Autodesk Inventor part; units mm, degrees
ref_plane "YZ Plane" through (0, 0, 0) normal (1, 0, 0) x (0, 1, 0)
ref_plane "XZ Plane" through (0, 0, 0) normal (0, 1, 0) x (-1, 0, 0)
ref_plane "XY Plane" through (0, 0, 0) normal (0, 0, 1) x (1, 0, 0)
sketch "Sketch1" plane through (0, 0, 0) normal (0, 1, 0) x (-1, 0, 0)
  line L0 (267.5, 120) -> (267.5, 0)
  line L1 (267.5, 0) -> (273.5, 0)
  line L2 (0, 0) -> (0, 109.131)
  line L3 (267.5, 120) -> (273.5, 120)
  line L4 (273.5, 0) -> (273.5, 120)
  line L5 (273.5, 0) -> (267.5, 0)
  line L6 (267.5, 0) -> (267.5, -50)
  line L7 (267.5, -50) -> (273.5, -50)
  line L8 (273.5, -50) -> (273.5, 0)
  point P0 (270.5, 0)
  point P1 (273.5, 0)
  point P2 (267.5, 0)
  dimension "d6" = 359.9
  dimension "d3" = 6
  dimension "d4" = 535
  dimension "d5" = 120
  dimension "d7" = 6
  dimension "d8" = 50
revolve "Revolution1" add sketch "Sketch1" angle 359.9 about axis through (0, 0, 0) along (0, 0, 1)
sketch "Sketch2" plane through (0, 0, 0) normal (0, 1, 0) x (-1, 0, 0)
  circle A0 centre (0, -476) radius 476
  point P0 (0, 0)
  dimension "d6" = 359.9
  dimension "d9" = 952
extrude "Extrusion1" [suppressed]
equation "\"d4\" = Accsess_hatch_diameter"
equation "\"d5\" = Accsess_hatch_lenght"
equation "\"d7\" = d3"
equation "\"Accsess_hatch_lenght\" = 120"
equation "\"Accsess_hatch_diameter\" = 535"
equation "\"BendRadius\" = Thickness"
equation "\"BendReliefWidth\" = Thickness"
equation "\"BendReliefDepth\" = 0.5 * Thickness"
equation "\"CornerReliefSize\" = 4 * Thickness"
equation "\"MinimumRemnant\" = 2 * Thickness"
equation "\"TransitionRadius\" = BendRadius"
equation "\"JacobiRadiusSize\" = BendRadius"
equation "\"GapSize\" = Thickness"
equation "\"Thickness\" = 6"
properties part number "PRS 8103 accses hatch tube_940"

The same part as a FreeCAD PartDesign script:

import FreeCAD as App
import Part
import Sketcher

V = App.Vector
Q = App.Units.Quantity


def add_polygon(sketch, points):
    """Adds a closed chain of lines whose ends are joined by coincident constraints."""
    first, n = sketch.GeometryCount, len(points)
    for a, b in zip(points, points[1:] + points[:1]):
        sketch.addGeometry(Part.LineSegment(App.Vector(*a, 0), App.Vector(*b, 0)), False)
    for i in range(n):
        sketch.addConstraint(Sketcher.Constraint("Coincident", first + i, 2, first + (i + 1) % n, 1))

doc = App.newDocument("Part")
body = doc.addObject("PartDesign::Body", "Body")

sketch1 = body.newObject("Sketcher::SketchObject", "Sketch")
sketch1.AttachmentSupport = (doc.getObject("XZ_Plane"), [""])
sketch1.MapMode = "FlatFace"
add_polygon(sketch1, [(-274, 120), (-268, 120), (-268, -50), (-274, -50)])
sketch1.addConstraint(Sketcher.Constraint("Horizontal", 0))
sketch1.addConstraint(Sketcher.Constraint("Vertical", 1))
sketch1.addConstraint(Sketcher.Constraint("Horizontal", 2))
sketch1.addConstraint(Sketcher.Constraint("Vertical", 3))
sketch1.addConstraint(Sketcher.Constraint("DistanceX", 0, 1, 0, 2, Q("6 mm")))
sketch1.addConstraint(Sketcher.Constraint("DistanceY", -1, 1, 0, 2, Q("120 mm")))
sketch1.addConstraint(Sketcher.Constraint("DistanceY", 1, 2, -1, 1, Q("50 mm")))
sketch1.addConstraint(Sketcher.Constraint("DistanceX", 0, 2, -1, 1, Q("267.5 mm")))
revolution = body.newObject("PartDesign::Revolution", "Revolution")
revolution.Profile = sketch1
revolution.ReferenceAxis = (sketch1, ["V_Axis"])
revolution.Angle = 359.9

doc.recompute()
